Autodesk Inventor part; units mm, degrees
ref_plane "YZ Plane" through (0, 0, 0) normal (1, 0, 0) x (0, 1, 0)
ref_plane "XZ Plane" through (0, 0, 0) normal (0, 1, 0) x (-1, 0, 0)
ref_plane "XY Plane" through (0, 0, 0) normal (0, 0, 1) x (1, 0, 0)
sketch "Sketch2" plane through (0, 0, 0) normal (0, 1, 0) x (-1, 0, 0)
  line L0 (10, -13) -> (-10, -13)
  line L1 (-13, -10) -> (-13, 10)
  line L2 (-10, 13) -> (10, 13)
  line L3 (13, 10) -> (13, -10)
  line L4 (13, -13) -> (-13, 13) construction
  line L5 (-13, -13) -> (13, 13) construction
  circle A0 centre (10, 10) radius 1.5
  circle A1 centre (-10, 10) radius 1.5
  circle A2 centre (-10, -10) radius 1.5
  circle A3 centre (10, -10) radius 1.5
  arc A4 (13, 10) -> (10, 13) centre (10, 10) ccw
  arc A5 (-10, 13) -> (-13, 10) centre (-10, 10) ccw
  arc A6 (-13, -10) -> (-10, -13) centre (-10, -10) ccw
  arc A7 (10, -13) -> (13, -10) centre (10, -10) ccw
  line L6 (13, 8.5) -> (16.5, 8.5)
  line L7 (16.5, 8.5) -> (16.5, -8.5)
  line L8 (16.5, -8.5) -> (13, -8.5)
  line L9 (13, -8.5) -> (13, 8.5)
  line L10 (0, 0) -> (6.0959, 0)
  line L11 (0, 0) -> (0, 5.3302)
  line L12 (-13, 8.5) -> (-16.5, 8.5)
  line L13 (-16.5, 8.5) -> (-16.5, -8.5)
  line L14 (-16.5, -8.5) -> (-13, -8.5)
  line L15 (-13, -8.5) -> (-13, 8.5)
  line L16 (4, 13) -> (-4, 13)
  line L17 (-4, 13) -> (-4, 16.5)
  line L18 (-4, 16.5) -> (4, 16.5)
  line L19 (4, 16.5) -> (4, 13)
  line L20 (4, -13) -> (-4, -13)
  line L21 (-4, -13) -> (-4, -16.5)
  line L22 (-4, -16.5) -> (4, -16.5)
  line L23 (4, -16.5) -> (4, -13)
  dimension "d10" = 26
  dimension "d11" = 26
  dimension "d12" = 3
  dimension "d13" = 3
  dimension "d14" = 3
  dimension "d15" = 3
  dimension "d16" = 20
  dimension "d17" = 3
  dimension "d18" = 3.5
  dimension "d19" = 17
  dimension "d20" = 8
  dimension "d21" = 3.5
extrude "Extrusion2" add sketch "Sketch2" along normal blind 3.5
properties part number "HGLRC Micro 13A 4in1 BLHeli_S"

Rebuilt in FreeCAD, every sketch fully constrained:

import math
import FreeCAD as App
import Part
import Sketcher

doc = App.newDocument("Part")
params = doc.addObject("Spreadsheet::Sheet", "Params")
for row, (alias, value) in enumerate([
    ("sketch1_diameter", "3 mm"),
    ("sketch1_radius", "3 mm"),
    ("sketch1_width", "8 mm"),
    ("sketch1_height", "17 mm"),
    ("sketch1_width2", "3.5 mm"),
    ("pad1_length", "3.5 mm"),
], start=1):
    params.set(f"A{row}", alias)
    params.set(f"B{row}", "=" + value)
    params.setAlias(f"B{row}", alias)

body = doc.addObject("PartDesign::Body", "Body")

# Sketch on XZ plane
sketch1 = body.newObject("Sketcher::SketchObject", "Sketch")
sketch1.AttachmentSupport = (doc.getObject("XZ_Plane"), [""])
sketch1.MapMode = "FlatFace"
sketch1.addGeometry(Part.LineSegment(App.Vector(-4, -13, 0), App.Vector(-10, -13, 0)), False)
sketch1.addGeometry(Part.ArcOfCircle(Part.Circle(App.Vector(-10, -10, 0), App.Vector(0, 0, 1), 3), math.radians(180), math.radians(270)), False)
sketch1.addGeometry(Part.LineSegment(App.Vector(-13, -10, 0), App.Vector(-13, -8.5, 0)), False)
sketch1.addGeometry(Part.LineSegment(App.Vector(-13, -8.5, 0), App.Vector(-16.5, -8.5, 0)), False)
sketch1.addGeometry(Part.LineSegment(App.Vector(-16.5, -8.5, 0), App.Vector(-16.5, 8.5, 0)), False)
sketch1.addGeometry(Part.LineSegment(App.Vector(-16.5, 8.5, 0), App.Vector(-13, 8.5, 0)), False)
sketch1.addGeometry(Part.LineSegment(App.Vector(-13, 8.5, 0), App.Vector(-13, 10, 0)), False)
sketch1.addGeometry(Part.ArcOfCircle(Part.Circle(App.Vector(-10, 10, 0), App.Vector(0, 0, 1), 3), math.radians(90), math.radians(180)), False)
sketch1.addGeometry(Part.LineSegment(App.Vector(-10, 13, 0), App.Vector(-4, 13, 0)), False)
sketch1.addGeometry(Part.LineSegment(App.Vector(-4, 13, 0), App.Vector(-4, 16.5, 0)), False)
sketch1.addGeometry(Part.LineSegment(App.Vector(-4, 16.5, 0), App.Vector(4, 16.5, 0)), False)
sketch1.addGeometry(Part.LineSegment(App.Vector(4, 16.5, 0), App.Vector(4, 13, 0)), False)
sketch1.addGeometry(Part.LineSegment(App.Vector(4, 13, 0), App.Vector(10, 13, 0)), False)
sketch1.addGeometry(Part.ArcOfCircle(Part.Circle(App.Vector(10, 10, 0), App.Vector(0, 0, 1), 3), math.radians(0), math.radians(90)), False)
sketch1.addGeometry(Part.LineSegment(App.Vector(13, 10, 0), App.Vector(13, 8.5, 0)), False)
sketch1.addGeometry(Part.LineSegment(App.Vector(13, 8.5, 0), App.Vector(16.5, 8.5, 0)), False)
sketch1.addGeometry(Part.LineSegment(App.Vector(16.5, 8.5, 0), App.Vector(16.5, -8.5, 0)), False)
sketch1.addGeometry(Part.LineSegment(App.Vector(16.5, -8.5, 0), App.Vector(13, -8.5, 0)), False)
sketch1.addGeometry(Part.LineSegment(App.Vector(13, -8.5, 0), App.Vector(13, -10, 0)), False)
sketch1.addGeometry(Part.ArcOfCircle(Part.Circle(App.Vector(10, -10, 0), App.Vector(0, 0, 1), 3), math.radians(-90), math.radians(0)), False)
sketch1.addGeometry(Part.LineSegment(App.Vector(10, -13, 0), App.Vector(4, -13, 0)), False)
sketch1.addGeometry(Part.LineSegment(App.Vector(4, -13, 0), App.Vector(4, -16.5, 0)), False)
sketch1.addGeometry(Part.LineSegment(App.Vector(4, -16.5, 0), App.Vector(-4, -16.5, 0)), False)
sketch1.addGeometry(Part.LineSegment(App.Vector(-4, -16.5, 0), App.Vector(-4, -13, 0)), False)
sketch1.addGeometry(Part.Circle(App.Vector(10, -10, 0), App.Vector(0, 0, 1), 1.5), False)
sketch1.addGeometry(Part.Circle(App.Vector(-10, -10, 0), App.Vector(0, 0, 1), 1.5), False)
sketch1.addGeometry(Part.Circle(App.Vector(10, 10, 0), App.Vector(0, 0, 1), 1.5), False)
sketch1.addGeometry(Part.Circle(App.Vector(-10, 10, 0), App.Vector(0, 0, 1), 1.5), False)
sketch1.addConstraint(Sketcher.Constraint("Tangent", 0, 2, 1, 2))
sketch1.addConstraint(Sketcher.Constraint("Tangent", 1, 1, 2, 1))
sketch1.addConstraint(Sketcher.Constraint("Coincident", 2, 2, 3, 1))
sketch1.addConstraint(Sketcher.Constraint("Coincident", 3, 2, 4, 1))
sketch1.addConstraint(Sketcher.Constraint("Coincident", 4, 2, 5, 1))
sketch1.addConstraint(Sketcher.Constraint("Coincident", 5, 2, 6, 1))
sketch1.addConstraint(Sketcher.Constraint("Tangent", 6, 2, 7, 2))
sketch1.addConstraint(Sketcher.Constraint("Tangent", 7, 1, 8, 1))
sketch1.addConstraint(Sketcher.Constraint("Coincident", 8, 2, 9, 1))
sketch1.addConstraint(Sketcher.Constraint("Coincident", 9, 2, 10, 1))
sketch1.addConstraint(Sketcher.Constraint("Coincident", 10, 2, 11, 1))
sketch1.addConstraint(Sketcher.Constraint("Coincident", 11, 2, 12, 1))
sketch1.addConstraint(Sketcher.Constraint("Tangent", 12, 2, 13, 2))
sketch1.addConstraint(Sketcher.Constraint("Tangent", 13, 1, 14, 1))
sketch1.addConstraint(Sketcher.Constraint("Coincident", 14, 2, 15, 1))
sketch1.addConstraint(Sketcher.Constraint("Coincident", 15, 2, 16, 1))
sketch1.addConstraint(Sketcher.Constraint("Coincident", 16, 2, 17, 1))
sketch1.addConstraint(Sketcher.Constraint("Coincident", 17, 2, 18, 1))
sketch1.addConstraint(Sketcher.Constraint("Tangent", 18, 2, 19, 2))
sketch1.addConstraint(Sketcher.Constraint("Tangent", 19, 1, 20, 1))
sketch1.addConstraint(Sketcher.Constraint("Coincident", 20, 2, 21, 1))
sketch1.addConstraint(Sketcher.Constraint("Coincident", 21, 2, 22, 1))
sketch1.addConstraint(Sketcher.Constraint("Coincident", 22, 2, 23, 1))
sketch1.addConstraint(Sketcher.Constraint("Coincident", 23, 2, 0, 1))
sketch1.addConstraint(Sketcher.Constraint("Horizontal", 0))
sketch1.addConstraint(Sketcher.Constraint("Vertical", 2))
sketch1.addConstraint(Sketcher.Constraint("Horizontal", 3))
sketch1.addConstraint(Sketcher.Constraint("Vertical", 4))
sketch1.addConstraint(Sketcher.Constraint("Horizontal", 5))
sketch1.addConstraint(Sketcher.Constraint("Vertical", 6))
sketch1.addConstraint(Sketcher.Constraint("Horizontal", 8))
sketch1.addConstraint(Sketcher.Constraint("Vertical", 9))
sketch1.addConstraint(Sketcher.Constraint("Horizontal", 10))
sketch1.addConstraint(Sketcher.Constraint("Vertical", 11))
sketch1.addConstraint(Sketcher.Constraint("Horizontal", 12))
sketch1.addConstraint(Sketcher.Constraint("Vertical", 14))
sketch1.addConstraint(Sketcher.Constraint("Horizontal", 15))
sketch1.addConstraint(Sketcher.Constraint("Vertical", 16))
sketch1.addConstraint(Sketcher.Constraint("Horizontal", 17))
sketch1.addConstraint(Sketcher.Constraint("Vertical", 18))
sketch1.addConstraint(Sketcher.Constraint("Horizontal", 20))
sketch1.addConstraint(Sketcher.Constraint("Vertical", 21))
sketch1.addConstraint(Sketcher.Constraint("Horizontal", 22))
sketch1.addConstraint(Sketcher.Constraint("Vertical", 23))
sketch1.addConstraint(Sketcher.Constraint("Coincident", 24, 3, 19, 3))
sketch1.addConstraint(Sketcher.Constraint("Coincident", 25, 3, 1, 3))
sketch1.addConstraint(Sketcher.Constraint("Coincident", 26, 3, 13, 3))
sketch1.addConstraint(Sketcher.Constraint("Coincident", 27, 3, 7, 3))
sketch1.addConstraint(Sketcher.Constraint("Equal", 1, 7))
sketch1.addConstraint(Sketcher.Constraint("Equal", 7, 13))
sketch1.addConstraint(Sketcher.Constraint("Equal", 13, 19))
sketch1.addConstraint(Sketcher.Constraint("Equal", 24, 25))
sketch1.addConstraint(Sketcher.Constraint("Equal", 25, 26))
sketch1.addConstraint(Sketcher.Constraint("Equal", 26, 27))
sketch1.addConstraint(Sketcher.Constraint("Symmetric", 1, 3, 13, 3, -1, 1))
sketch1.addConstraint(Sketcher.Constraint("Symmetric", 7, 3, 19, 3, -1, 1))
sketch1.addConstraint(Sketcher.Constraint("Symmetric", 3, 2, 15, 2, -1, 1))
sketch1.addConstraint(Sketcher.Constraint("Symmetric", 9, 2, 21, 2, -1, 1))
sketch1.addConstraint(Sketcher.Constraint("Symmetric", 7, 3, 13, 3, -2))
sketch1.addConstraint(Sketcher.Constraint("Horizontal", 5, 2, 14, 2))
sketch1.addConstraint(Sketcher.Constraint("Horizontal", 3, 2, 16, 2))
sketch1.addConstraint(Sketcher.Constraint("Vertical", 11, 2, 20, 2))
sketch1.addConstraint(Sketcher.Constraint("Vertical", 9, 2, 22, 2))
sketch1.addConstraint(Sketcher.Constraint("Equal", 17, 9))
sketch1.addConstraint(Sketcher.Constraint("Diameter", 24, 3.0))
sketch1.addConstraint(Sketcher.Constraint("Radius", 1, 3.0))
sketch1.addConstraint(Sketcher.Constraint("DistanceX", 10, 1, 10, 2, 8.0))
sketch1.addConstraint(Sketcher.Constraint("DistanceY", 4, 1, 4, 2, 17.0))
sketch1.addConstraint(Sketcher.Constraint("DistanceX", 3, 2, 3, 1, 3.5))
sketch1.addConstraint(Sketcher.Constraint("DistanceY", 1, 3, 7, 3, 20.0))
sketch1.addConstraint(Sketcher.Constraint("DistanceX", 7, 3, 13, 3, 20.0))
sketch1.setExpression("Constraints[64]", "Params.sketch1_diameter")
sketch1.setExpression("Constraints[65]", "Params.sketch1_radius")
sketch1.setExpression("Constraints[66]", "Params.sketch1_width")
sketch1.setExpression("Constraints[67]", "Params.sketch1_height")
sketch1.setExpression("Constraints[68]", "Params.sketch1_width2")
pad1 = body.newObject("PartDesign::Pad", "Pad")
pad1.Profile = sketch1
pad1.setExpression("Length", "Params.pad1_length")
pad1.Reversed = True

doc.recompute()
